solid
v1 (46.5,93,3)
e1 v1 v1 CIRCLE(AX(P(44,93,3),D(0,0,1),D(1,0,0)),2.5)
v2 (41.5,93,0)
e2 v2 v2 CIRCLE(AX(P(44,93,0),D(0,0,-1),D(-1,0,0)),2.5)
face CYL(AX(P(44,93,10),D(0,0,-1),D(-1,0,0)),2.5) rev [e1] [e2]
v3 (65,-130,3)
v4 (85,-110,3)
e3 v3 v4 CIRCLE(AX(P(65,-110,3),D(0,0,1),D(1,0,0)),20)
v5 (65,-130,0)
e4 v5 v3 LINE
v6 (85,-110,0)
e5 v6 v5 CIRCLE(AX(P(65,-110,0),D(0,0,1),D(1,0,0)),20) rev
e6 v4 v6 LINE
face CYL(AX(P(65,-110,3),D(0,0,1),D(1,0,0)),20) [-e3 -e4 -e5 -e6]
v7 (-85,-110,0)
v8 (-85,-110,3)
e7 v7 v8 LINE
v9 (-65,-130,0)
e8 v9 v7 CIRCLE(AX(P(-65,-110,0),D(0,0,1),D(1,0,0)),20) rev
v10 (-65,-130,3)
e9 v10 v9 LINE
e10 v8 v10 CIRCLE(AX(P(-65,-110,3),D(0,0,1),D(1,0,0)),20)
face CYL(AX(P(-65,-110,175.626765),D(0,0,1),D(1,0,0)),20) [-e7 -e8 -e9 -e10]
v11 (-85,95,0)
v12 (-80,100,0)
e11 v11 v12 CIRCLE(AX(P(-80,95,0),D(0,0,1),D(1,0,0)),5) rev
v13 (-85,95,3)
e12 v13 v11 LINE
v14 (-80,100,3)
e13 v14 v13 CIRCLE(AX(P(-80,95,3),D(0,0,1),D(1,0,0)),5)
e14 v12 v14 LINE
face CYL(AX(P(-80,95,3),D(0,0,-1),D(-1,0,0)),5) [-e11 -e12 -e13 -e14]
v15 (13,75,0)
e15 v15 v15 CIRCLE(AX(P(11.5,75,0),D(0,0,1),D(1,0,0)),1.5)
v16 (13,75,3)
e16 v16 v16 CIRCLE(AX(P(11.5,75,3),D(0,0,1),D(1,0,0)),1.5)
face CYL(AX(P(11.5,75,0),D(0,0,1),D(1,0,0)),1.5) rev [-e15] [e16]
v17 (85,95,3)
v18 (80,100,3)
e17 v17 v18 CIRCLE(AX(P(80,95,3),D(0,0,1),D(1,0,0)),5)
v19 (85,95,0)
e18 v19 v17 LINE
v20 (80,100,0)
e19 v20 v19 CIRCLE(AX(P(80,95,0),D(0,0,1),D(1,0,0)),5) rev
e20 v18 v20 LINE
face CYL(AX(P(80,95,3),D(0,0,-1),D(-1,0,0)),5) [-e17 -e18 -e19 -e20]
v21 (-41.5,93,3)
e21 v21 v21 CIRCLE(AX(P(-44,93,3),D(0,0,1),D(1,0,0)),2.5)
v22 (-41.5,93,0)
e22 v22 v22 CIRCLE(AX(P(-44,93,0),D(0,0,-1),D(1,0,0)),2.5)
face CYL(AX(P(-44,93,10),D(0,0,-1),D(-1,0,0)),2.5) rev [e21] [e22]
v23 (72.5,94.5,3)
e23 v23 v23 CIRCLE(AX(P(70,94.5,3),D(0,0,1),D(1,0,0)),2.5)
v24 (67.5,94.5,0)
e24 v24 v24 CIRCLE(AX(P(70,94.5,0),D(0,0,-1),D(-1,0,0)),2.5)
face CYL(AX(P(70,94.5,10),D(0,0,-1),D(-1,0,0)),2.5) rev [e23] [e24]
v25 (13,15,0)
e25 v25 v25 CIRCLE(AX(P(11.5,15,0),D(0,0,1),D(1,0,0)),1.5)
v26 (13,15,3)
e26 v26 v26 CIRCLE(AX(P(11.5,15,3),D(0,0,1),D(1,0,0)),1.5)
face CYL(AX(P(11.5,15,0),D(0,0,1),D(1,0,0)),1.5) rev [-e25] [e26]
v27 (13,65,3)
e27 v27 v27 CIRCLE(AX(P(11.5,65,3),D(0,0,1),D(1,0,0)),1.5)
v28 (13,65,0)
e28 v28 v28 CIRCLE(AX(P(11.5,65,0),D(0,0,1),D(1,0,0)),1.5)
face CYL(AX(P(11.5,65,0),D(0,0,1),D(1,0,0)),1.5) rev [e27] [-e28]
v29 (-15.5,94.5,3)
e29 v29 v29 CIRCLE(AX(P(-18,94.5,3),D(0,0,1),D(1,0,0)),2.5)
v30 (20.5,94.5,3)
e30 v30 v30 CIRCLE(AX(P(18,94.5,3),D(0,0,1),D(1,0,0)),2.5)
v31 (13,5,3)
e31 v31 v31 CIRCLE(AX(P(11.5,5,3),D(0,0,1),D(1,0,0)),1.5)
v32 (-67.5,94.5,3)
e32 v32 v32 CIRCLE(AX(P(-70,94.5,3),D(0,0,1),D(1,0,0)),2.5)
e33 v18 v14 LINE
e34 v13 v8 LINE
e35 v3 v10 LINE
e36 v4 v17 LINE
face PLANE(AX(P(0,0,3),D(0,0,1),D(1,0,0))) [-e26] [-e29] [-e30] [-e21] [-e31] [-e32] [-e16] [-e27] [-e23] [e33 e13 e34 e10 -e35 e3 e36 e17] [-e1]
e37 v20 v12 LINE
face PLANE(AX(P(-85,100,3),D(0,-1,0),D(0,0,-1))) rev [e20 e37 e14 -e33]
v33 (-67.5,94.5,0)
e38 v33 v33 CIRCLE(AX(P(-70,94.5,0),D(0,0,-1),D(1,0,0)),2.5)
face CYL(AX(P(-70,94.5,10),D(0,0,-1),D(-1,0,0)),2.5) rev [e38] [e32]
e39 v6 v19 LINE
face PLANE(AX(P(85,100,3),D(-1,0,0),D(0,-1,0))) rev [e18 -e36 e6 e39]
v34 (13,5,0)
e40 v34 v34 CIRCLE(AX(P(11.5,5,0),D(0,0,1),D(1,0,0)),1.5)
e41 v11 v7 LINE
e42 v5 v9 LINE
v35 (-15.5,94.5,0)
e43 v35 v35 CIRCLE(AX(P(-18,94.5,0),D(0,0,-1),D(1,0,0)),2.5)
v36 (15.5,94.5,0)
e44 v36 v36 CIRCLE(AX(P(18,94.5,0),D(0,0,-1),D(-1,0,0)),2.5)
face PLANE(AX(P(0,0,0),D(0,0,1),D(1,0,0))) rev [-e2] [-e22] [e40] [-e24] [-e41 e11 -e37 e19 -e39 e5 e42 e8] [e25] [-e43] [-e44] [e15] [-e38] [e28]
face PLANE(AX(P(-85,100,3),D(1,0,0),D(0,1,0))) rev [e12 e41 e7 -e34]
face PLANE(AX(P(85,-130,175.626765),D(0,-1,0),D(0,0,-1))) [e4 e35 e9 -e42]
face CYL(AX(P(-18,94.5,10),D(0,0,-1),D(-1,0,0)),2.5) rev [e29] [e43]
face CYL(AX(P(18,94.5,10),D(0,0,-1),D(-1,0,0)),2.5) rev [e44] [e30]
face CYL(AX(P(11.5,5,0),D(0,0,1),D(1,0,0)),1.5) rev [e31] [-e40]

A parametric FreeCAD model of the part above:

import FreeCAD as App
import Part
import Sketcher

V = App.Vector
Q = App.Units.Quantity


def edges_at(feature, points):
    """Names of the edges that pass closest to the given points."""
    edges = feature.Shape.Edges
    near = lambda p: min(range(len(edges)), key=lambda i: edges[i].distToShape(Part.Vertex(*p))[0])
    return sorted({f"Edge{near(p) + 1}" for p in points})

doc = App.newDocument("Part")
params = doc.addObject("Spreadsheet::Sheet", "Params")
for row, (alias, value) in enumerate([
    ("sketch1_width", "170 mm"),
    ("sketch1_height", "200 mm"),
    ("pad1_length", "3 mm"),
    ("sketch2_width", "170 mm"),
    ("sketch2_height", "30 mm"),
    ("pad2_length", "3 mm"),
    ("fillet_radius", "20 mm"),
    ("fillet2_radius", "5 mm"),
    ("sketch3_diameter", "3 mm"),
    ("sketch4_diameter", "5 mm"),
    ("pocket2_length", "10 mm"),
], start=1):
    params.set(f"A{row}", alias)
    params.set(f"B{row}", "=" + value)
    params.setAlias(f"B{row}", alias)

body = doc.addObject("PartDesign::Body", "Body")

sketch1 = doc.addObject("Sketcher::SketchObject", "Sketch")
body.addObject(sketch1)
sketch1.AttachmentSupport = (doc.XY_Plane, [""])
sketch1.MapMode = "FlatFace"
sketch1.addGeometry([
    Part.LineSegment(V(-85, 100, 0), V(-85, -100, 0)),
    Part.LineSegment(V(-85, -100, 0), V(85, -100, 0)),
    Part.LineSegment(V(85, -100, 0), V(85, 100, 0)),
    Part.LineSegment(V(85, 100, 0), V(-85, 100, 0)),
], False)
sketch1.addConstraint([
    Sketcher.Constraint("Coincident", 0, 2, 1, 1),
    Sketcher.Constraint("Coincident", 1, 2, 2, 1),
    Sketcher.Constraint("Coincident", 2, 2, 3, 1),
    Sketcher.Constraint("Coincident", 3, 2, 0, 1),
    Sketcher.Constraint("Vertical", 0),
    Sketcher.Constraint("Horizontal", 1),
    Sketcher.Constraint("Vertical", 2),
    Sketcher.Constraint("Horizontal", 3),
    Sketcher.Constraint("Symmetric", 0, 2, 2, 2, -1, 1),
    Sketcher.Constraint("DistanceX", 1, 1, 1, 2, Q("170 mm")),
    Sketcher.Constraint("DistanceY", 0, 2, 0, 1, Q("200 mm")),
])
sketch1.setExpression("Constraints[9]", "Params.sketch1_width")
sketch1.setExpression("Constraints[10]", "Params.sketch1_height")
pad1 = doc.addObject("PartDesign::Pad", "Pad")
body.addObject(pad1)
pad1.Profile = sketch1
pad1.setExpression("Length", "Params.pad1_length")

sketch2 = doc.addObject("Sketcher::SketchObject", "Sketch001")
body.addObject(sketch2)
sketch2.AttachmentSupport = (doc.XY_Plane, [""])
sketch2.MapMode = "FlatFace"
sketch2.addGeometry([
    Part.LineSegment(V(85, -100, 0), V(85, -130, 0)),
    Part.LineSegment(V(85, -130, 0), V(-85, -130, 0)),
    Part.LineSegment(V(-85, -130, 0), V(-85, -100, 0)),
    Part.LineSegment(V(-85, -100, 0), V(85, -100, 0)),
], False)
sketch2.addConstraint([
    Sketcher.Constraint("Coincident", 0, 2, 1, 1),
    Sketcher.Constraint("Coincident", 1, 2, 2, 1),
    Sketcher.Constraint("Coincident", 2, 2, 3, 1),
    Sketcher.Constraint("Coincident", 3, 2, 0, 1),
    Sketcher.Constraint("Vertical", 0),
    Sketcher.Constraint("Horizontal", 1),
    Sketcher.Constraint("Vertical", 2),
    Sketcher.Constraint("Horizontal", 3),
    Sketcher.Constraint("DistanceX", 1, 2, 1, 1, Q("170 mm")),
    Sketcher.Constraint("DistanceY", 0, 2, 0, 1, Q("30 mm")),
    Sketcher.Constraint("DistanceX", -1, 1, 0, 2, Q("85 mm")),
    Sketcher.Constraint("DistanceY", 0, 2, -1, 1, Q("130 mm")),
])
sketch2.setExpression("Constraints[8]", "Params.sketch2_width")
sketch2.setExpression("Constraints[9]", "Params.sketch2_height")
pad2 = doc.addObject("PartDesign::Pad", "Pad001")
body.addObject(pad2)
pad2.Profile = sketch2
pad2.setExpression("Length", "Params.pad2_length")
doc.recompute()

fillet = doc.addObject("PartDesign::Fillet", "Fillet")
body.addObject(fillet)
fillet.Base = (pad2, edges_at(pad2, [(-85, -130, 1.5), (85, -130, 1.5)]))
fillet.setExpression("Radius", "Params.fillet_radius")
doc.recompute()

fillet2 = doc.addObject("PartDesign::Fillet", "Fillet001")
body.addObject(fillet2)
fillet2.Base = (fillet, edges_at(fillet, [(-85, 100, 1.5), (85, 100, 1.5)]))
fillet2.setExpression("Radius", "Params.fillet2_radius")

sketch3 = doc.addObject("Sketcher::SketchObject", "Sketch002")
body.addObject(sketch3)
sketch3.AttachmentSupport = (doc.XY_Plane, [""])
sketch3.MapMode = "FlatFace"
sketch3.AttachmentOffset = App.Placement(V(0, 0, 3), App.Rotation())
sketch3.addGeometry([
    Part.Circle(V(11.5, 5, 0), V(0, 0, 1), 1.5),
    Part.Circle(V(11.5, 15, 0), V(0, 0, 1), 1.5),
    Part.Circle(V(11.5, 65, 0), V(0, 0, 1), 1.5),
    Part.Circle(V(11.5, 75, 0), V(0, 0, 1), 1.5),
], False)
sketch3.addConstraint([
    Sketcher.Constraint("Equal", 0, 1),
    Sketcher.Constraint("Equal", 1, 2),
    Sketcher.Constraint("Equal", 2, 3),
    Sketcher.Constraint("Vertical", 0, 3, 1, 3),
    Sketcher.Constraint("Vertical", 1, 3, 2, 3),
    Sketcher.Constraint("Vertical", 2, 3, 3, 3),
    Sketcher.Constraint("Diameter", 0, Q("3 mm")),
    Sketcher.Constraint("DistanceY", -1, 1, 0, 3, Q("5 mm")),
    Sketcher.Constraint("DistanceY", -1, 1, 1, 3, Q("15 mm")),
    Sketcher.Constraint("DistanceY", -1, 1, 2, 3, Q("65 mm")),
    Sketcher.Constraint("DistanceY", -1, 1, 3, 3, Q("75 mm")),
    Sketcher.Constraint("DistanceX", -1, 1, 0, 3, Q("11.5 mm")),
])
sketch3.setExpression("Constraints[6]", "Params.sketch3_diameter")
pocket1 = doc.addObject("PartDesign::Pocket", "Pocket")
body.addObject(pocket1)
pocket1.Profile = sketch3
pocket1.Type = "ThroughAll"

sketch4 = doc.addObject("Sketcher::SketchObject", "Sketch003")
body.addObject(sketch4)
sketch4.AttachmentSupport = (doc.XY_Plane, [""])
sketch4.MapMode = "FlatFace"
sketch4.addGeometry([
    Part.Circle(V(18, 94.5, 0), V(0, 0, 1), 2.5),
    Part.Circle(V(70, 94.5, 0), V(0, 0, 1), 2.5),
    Part.Circle(V(44, 93, 0), V(0, 0, 1), 2.5),
    Part.Circle(V(-70, 94.5, 0), V(0, 0, 1), 2.5),
    Part.Circle(V(-44, 93, 0), V(0, 0, 1), 2.5),
    Part.Circle(V(-18, 94.5, 0), V(0, 0, 1), 2.5),
], False)
sketch4.addConstraint([
    Sketcher.Constraint("Equal", 0, 1),
    Sketcher.Constraint("Equal", 1, 2),
    Sketcher.Constraint("Equal", 2, 3),
    Sketcher.Constraint("Equal", 3, 4),
    Sketcher.Constraint("Equal", 4, 5),
    Sketcher.Constraint("Symmetric", 1, 3, 3, 3, -2),
    Sketcher.Constraint("Symmetric", 2, 3, 4, 3, -2),
    Sketcher.Constraint("Symmetric", 0, 3, 5, 3, -2),
    Sketcher.Constraint("Horizontal", 0, 3, 1, 3),
    Sketcher.Constraint("Diameter", 0, Q("5 mm")),
    Sketcher.Constraint("DistanceX", -1, 1, 0, 3, Q("18 mm")),
    Sketcher.Constraint("DistanceX", -1, 1, 1, 3, Q("70 mm")),
    Sketcher.Constraint("DistanceX", -1, 1, 2, 3, Q("44 mm")),
    Sketcher.Constraint("DistanceY", -1, 1, 2, 3, Q("93 mm")),
    Sketcher.Constraint("DistanceY", -1, 1, 0, 3, Q("94.5 mm")),
])
sketch4.setExpression("Constraints[9]", "Params.sketch4_diameter")
pocket2 = doc.addObject("PartDesign::Pocket", "Pocket001")
body.addObject(pocket2)
pocket2.Profile = sketch4
pocket2.setExpression("Length", "Params.pocket2_length")
pocket2.Reversed = True

doc.recompute()
